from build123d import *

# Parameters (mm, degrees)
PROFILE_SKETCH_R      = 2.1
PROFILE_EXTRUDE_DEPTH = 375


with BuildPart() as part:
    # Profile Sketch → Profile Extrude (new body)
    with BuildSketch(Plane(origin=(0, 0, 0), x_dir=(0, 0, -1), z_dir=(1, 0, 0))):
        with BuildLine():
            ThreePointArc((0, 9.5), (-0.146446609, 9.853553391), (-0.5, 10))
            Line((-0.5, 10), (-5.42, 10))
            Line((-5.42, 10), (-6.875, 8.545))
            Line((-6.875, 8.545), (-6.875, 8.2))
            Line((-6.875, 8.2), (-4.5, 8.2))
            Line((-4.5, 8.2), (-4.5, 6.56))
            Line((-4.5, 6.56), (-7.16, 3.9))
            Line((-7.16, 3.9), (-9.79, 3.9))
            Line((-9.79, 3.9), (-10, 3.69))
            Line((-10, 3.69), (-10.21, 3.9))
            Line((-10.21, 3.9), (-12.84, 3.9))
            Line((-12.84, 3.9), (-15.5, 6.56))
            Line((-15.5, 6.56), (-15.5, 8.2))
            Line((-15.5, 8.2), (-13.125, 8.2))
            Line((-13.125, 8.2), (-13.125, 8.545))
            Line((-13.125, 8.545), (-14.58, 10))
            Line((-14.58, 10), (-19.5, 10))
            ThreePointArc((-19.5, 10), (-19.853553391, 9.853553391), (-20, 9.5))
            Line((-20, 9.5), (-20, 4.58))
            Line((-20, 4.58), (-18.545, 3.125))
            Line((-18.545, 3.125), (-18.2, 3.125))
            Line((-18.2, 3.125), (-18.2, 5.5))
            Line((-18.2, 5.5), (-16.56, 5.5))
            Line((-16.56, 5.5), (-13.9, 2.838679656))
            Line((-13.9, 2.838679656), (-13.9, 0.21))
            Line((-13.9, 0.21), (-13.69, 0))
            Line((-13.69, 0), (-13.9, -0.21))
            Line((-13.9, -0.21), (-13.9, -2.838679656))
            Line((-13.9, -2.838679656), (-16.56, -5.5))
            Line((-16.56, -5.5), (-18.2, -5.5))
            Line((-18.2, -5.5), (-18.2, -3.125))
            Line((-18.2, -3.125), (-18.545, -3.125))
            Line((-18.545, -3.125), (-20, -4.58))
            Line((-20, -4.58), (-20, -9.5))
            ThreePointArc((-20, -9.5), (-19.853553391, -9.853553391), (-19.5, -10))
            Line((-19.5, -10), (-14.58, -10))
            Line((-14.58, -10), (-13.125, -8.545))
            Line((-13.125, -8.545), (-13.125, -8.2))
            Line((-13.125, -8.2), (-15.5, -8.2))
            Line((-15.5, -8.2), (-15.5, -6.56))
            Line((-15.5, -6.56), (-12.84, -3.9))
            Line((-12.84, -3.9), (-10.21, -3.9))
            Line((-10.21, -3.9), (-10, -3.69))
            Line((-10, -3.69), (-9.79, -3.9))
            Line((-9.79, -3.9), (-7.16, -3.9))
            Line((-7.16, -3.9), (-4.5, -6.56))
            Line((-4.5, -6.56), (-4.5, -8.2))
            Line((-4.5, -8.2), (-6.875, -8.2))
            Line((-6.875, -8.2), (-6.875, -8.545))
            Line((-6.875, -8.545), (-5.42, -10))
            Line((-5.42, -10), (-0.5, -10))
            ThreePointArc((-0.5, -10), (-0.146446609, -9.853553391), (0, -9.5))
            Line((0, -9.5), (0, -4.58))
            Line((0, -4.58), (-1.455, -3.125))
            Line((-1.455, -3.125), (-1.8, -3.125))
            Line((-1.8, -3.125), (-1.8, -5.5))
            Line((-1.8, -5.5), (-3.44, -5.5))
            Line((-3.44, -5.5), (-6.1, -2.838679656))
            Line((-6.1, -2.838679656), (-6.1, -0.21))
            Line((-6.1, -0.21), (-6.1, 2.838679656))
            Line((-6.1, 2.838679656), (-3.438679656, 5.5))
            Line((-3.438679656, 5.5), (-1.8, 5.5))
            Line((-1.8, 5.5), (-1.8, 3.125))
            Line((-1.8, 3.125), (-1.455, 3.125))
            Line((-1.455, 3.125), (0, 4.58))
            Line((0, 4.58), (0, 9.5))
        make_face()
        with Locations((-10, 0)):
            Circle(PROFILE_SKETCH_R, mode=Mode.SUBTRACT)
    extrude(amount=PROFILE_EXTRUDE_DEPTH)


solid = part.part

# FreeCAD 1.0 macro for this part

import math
import FreeCAD as App
import Part
import Sketcher

V = App.Vector
Q = App.Units.Quantity

doc = App.newDocument("Part")
params = doc.addObject("Spreadsheet::Sheet", "Params")
for row, (alias, value) in enumerate([
    ("sketch1_diameter", "4.2 mm"),
    ("sketch1_radius", "0.5 mm"),
    ("sketch1_width", "1.64 mm"),
    ("sketch1_width2", "4.92 mm"),
    ("sketch1_height", "2.63 mm"),
    ("pad1_length", "375 mm"),
], start=1):
    params.set(f"A{row}", alias)
    params.set(f"B{row}", "=" + value)
    params.setAlias(f"B{row}", alias)

body = doc.addObject("PartDesign::Body", "Body")

# Sketch on YZ plane
sketch1 = doc.addObject("Sketcher::SketchObject", "Sketch")
body.addObject(sketch1)
sketch1.AttachmentSupport = (doc.YZ_Plane, [""])
sketch1.MapMode = "FlatFace"
sketch1.addGeometry([
    Part.ArcOfCircle(Part.Circle(V(9.5, 0.5, 0), V(0, 0, 1), 0.5), math.radians(-90), math.radians(0)),  # 0
    Part.LineSegment(V(10, 0.5, 0), V(10, 5.42, 0)),  # 1
    Part.LineSegment(V(10, 5.42, 0), V(8.54, 6.88, 0)),  # 2
    Part.LineSegment(V(8.54, 6.88, 0), V(8.2, 6.88, 0)),  # 3
    Part.LineSegment(V(8.2, 6.88, 0), V(8.2, 4.5, 0)),  # 4
    Part.LineSegment(V(8.2, 4.5, 0), V(6.56, 4.5, 0)),  # 5
    Part.LineSegment(V(6.56, 4.5, 0), V(3.9, 7.16, 0)),  # 6
    Part.LineSegment(V(3.9, 7.16, 0), V(3.9, 9.79, 0)),  # 7
    Part.LineSegment(V(3.9, 9.79, 0), V(3.69, 10, 0)),  # 8
    Part.LineSegment(V(3.69, 10, 0), V(3.9, 10.21, 0)),  # 9
    Part.LineSegment(V(3.9, 10.21, 0), V(3.9, 12.84, 0)),  # 10
    Part.LineSegment(V(3.9, 12.84, 0), V(6.56, 15.5, 0)),  # 11
    Part.LineSegment(V(6.56, 15.5, 0), V(8.2, 15.5, 0)),  # 12
    Part.LineSegment(V(8.2, 15.5, 0), V(8.2, 13.12, 0)),  # 13
    Part.LineSegment(V(8.2, 13.12, 0), V(8.54, 13.12, 0)),  # 14
    Part.LineSegment(V(8.54, 13.12, 0), V(10, 14.58, 0)),  # 15
    Part.LineSegment(V(10, 14.58, 0), V(10, 19.5, 0)),  # 16
    Part.ArcOfCircle(Part.Circle(V(9.5, 19.5, 0), V(0, 0, 1), 0.5), math.radians(0), math.radians(90)),  # 17
    Part.LineSegment(V(9.5, 20, 0), V(4.58, 20, 0)),  # 18
    Part.LineSegment(V(4.58, 20, 0), V(3.12, 18.55, 0)),  # 19
    Part.LineSegment(V(3.12, 18.55, 0), V(3.12, 18.2, 0)),  # 20
    Part.LineSegment(V(3.12, 18.2, 0), V(5.5, 18.2, 0)),  # 21
    Part.LineSegment(V(5.5, 18.2, 0), V(5.5, 16.56, 0)),  # 22
    Part.LineSegment(V(5.5, 16.56, 0), V(2.84, 13.9, 0)),  # 23
    Part.LineSegment(V(2.84, 13.9, 0), V(0.21, 13.9, 0)),  # 24
    Part.LineSegment(V(0.21, 13.9, 0), V(0, 13.69, 0)),  # 25
    Part.LineSegment(V(0, 13.69, 0), V(-0.21, 13.9, 0)),  # 26
    Part.LineSegment(V(-0.21, 13.9, 0), V(-2.84, 13.9, 0)),  # 27
    Part.LineSegment(V(-2.84, 13.9, 0), V(-5.5, 16.56, 0)),  # 28
    Part.LineSegment(V(-5.5, 16.56, 0), V(-5.5, 18.2, 0)),  # 29
    Part.LineSegment(V(-5.5, 18.2, 0), V(-3.12, 18.2, 0)),  # 30
    Part.LineSegment(V(-3.12, 18.2, 0), V(-3.12, 18.55, 0)),  # 31
    Part.LineSegment(V(-3.12, 18.55, 0), V(-4.58, 20, 0)),  # 32
    Part.LineSegment(V(-4.58, 20, 0), V(-9.5, 20, 0)),  # 33
    Part.ArcOfCircle(Part.Circle(V(-9.5, 19.5, 0), V(0, 0, 1), 0.5), math.radians(90), math.radians(180)),  # 34
    Part.LineSegment(V(-10, 19.5, 0), V(-10, 14.58, 0)),  # 35
    Part.LineSegment(V(-10, 14.58, 0), V(-8.54, 13.12, 0)),  # 36
    Part.LineSegment(V(-8.54, 13.12, 0), V(-8.2, 13.12, 0)),  # 37
    Part.LineSegment(V(-8.2, 13.12, 0), V(-8.2, 15.5, 0)),  # 38
    Part.LineSegment(V(-8.2, 15.5, 0), V(-6.56, 15.5, 0)),  # 39
    Part.LineSegment(V(-6.56, 15.5, 0), V(-3.9, 12.84, 0)),  # 40
    Part.LineSegment(V(-3.9, 12.84, 0), V(-3.9, 10.21, 0)),  # 41
    Part.LineSegment(V(-3.9, 10.21, 0), V(-3.69, 10, 0)),  # 42
    Part.LineSegment(V(-3.69, 10, 0), V(-3.9, 9.79, 0)),  # 43
    Part.LineSegment(V(-3.9, 9.79, 0), V(-3.9, 7.16, 0)),  # 44
    Part.LineSegment(V(-3.9, 7.16, 0), V(-6.56, 4.5, 0)),  # 45
    Part.LineSegment(V(-6.56, 4.5, 0), V(-8.2, 4.5, 0)),  # 46
    Part.LineSegment(V(-8.2, 4.5, 0), V(-8.2, 6.88, 0)),  # 47
    Part.LineSegment(V(-8.2, 6.88, 0), V(-8.54, 6.88, 0)),  # 48
    Part.LineSegment(V(-8.54, 6.88, 0), V(-10, 5.42, 0)),  # 49
    Part.LineSegment(V(-10, 5.42, 0), V(-10, 0.5, 0)),  # 50
    Part.ArcOfCircle(Part.Circle(V(-9.5, 0.5, 0), V(0, 0, 1), 0.5), math.radians(180), math.radians(270)),  # 51
    Part.LineSegment(V(-9.5, 0, 0), V(-4.58, 0, 0)),  # 52
    Part.LineSegment(V(-4.58, 0, 0), V(-3.12, 1.46, 0)),  # 53
    Part.LineSegment(V(-3.12, 1.46, 0), V(-3.12, 1.8, 0)),  # 54
    Part.LineSegment(V(-3.12, 1.8, 0), V(-5.5, 1.8, 0)),  # 55
    Part.LineSegment(V(-5.5, 1.8, 0), V(-5.5, 3.44, 0)),  # 56
    Part.LineSegment(V(-5.5, 3.44, 0), V(-2.84, 6.1, 0)),  # 57
    Part.LineSegment(V(-2.84, 6.1, 0), V(2.84, 6.1, 0)),  # 58
    Part.LineSegment(V(2.84, 6.1, 0), V(5.5, 3.44, 0)),  # 59
    Part.LineSegment(V(5.5, 3.44, 0), V(5.5, 1.8, 0)),  # 60
    Part.LineSegment(V(5.5, 1.8, 0), V(3.12, 1.8, 0)),  # 61
    Part.LineSegment(V(3.12, 1.8, 0), V(3.12, 1.46, 0)),  # 62
    Part.LineSegment(V(3.12, 1.46, 0), V(4.58, 0, 0)),  # 63
    Part.LineSegment(V(4.58, 0, 0), V(9.5, 0, 0)),  # 64
    Part.Circle(V(0, 10, 0), V(0, 0, 1), 2.1),  # 65
], False)
sketch1.addConstraint([
    Sketcher.Constraint("Tangent", 0, 2, 1, 1),
    Sketcher.Constraint("Coincident", 1, 2, 2, 1),
    Sketcher.Constraint("Coincident", 2, 2, 3, 1),
    Sketcher.Constraint("Coincident", 3, 2, 4, 1),
    Sketcher.Constraint("Coincident", 4, 2, 5, 1),
    Sketcher.Constraint("Coincident", 5, 2, 6, 1),
    Sketcher.Constraint("Coincident", 6, 2, 7, 1),
    Sketcher.Constraint("Coincident", 7, 2, 8, 1),
    Sketcher.Constraint("Coincident", 8, 2, 9, 1),
    Sketcher.Constraint("Coincident", 9, 2, 10, 1),
    Sketcher.Constraint("Coincident", 10, 2, 11, 1),
    Sketcher.Constraint("Coincident", 11, 2, 12, 1),
    Sketcher.Constraint("Coincident", 12, 2, 13, 1),
    Sketcher.Constraint("Coincident", 13, 2, 14, 1),
    Sketcher.Constraint("Coincident", 14, 2, 15, 1),
    Sketcher.Constraint("Coincident", 15, 2, 16, 1),
    Sketcher.Constraint("Tangent", 16, 2, 17, 1),
    Sketcher.Constraint("Tangent", 17, 2, 18, 1),
    Sketcher.Constraint("Coincident", 18, 2, 19, 1),
    Sketcher.Constraint("Coincident", 19, 2, 20, 1),
    Sketcher.Constraint("Coincident", 20, 2, 21, 1),
    Sketcher.Constraint("Coincident", 21, 2, 22, 1),
    Sketcher.Constraint("Coincident", 22, 2, 23, 1),
    Sketcher.Constraint("Coincident", 23, 2, 24, 1),
    Sketcher.Constraint("Coincident", 24, 2, 25, 1),
    Sketcher.Constraint("Coincident", 25, 2, 26, 1),
    Sketcher.Constraint("Coincident", 26, 2, 27, 1),
    Sketcher.Constraint("Coincident", 27, 2, 28, 1),
    Sketcher.Constraint("Coincident", 28, 2, 29, 1),
    Sketcher.Constraint("Coincident", 29, 2, 30, 1),
    Sketcher.Constraint("Coincident", 30, 2, 31, 1),
    Sketcher.Constraint("Coincident", 31, 2, 32, 1),
    Sketcher.Constraint("Coincident", 32, 2, 33, 1),
    Sketcher.Constraint("Tangent", 33, 2, 34, 1),
    Sketcher.Constraint("Tangent", 34, 2, 35, 1),
    Sketcher.Constraint("Coincident", 35, 2, 36, 1),
    Sketcher.Constraint("Coincident", 36, 2, 37, 1),
    Sketcher.Constraint("Coincident", 37, 2, 38, 1),
    Sketcher.Constraint("Coincident", 38, 2, 39, 1),
    Sketcher.Constraint("Coincident", 39, 2, 40, 1),
    Sketcher.Constraint("Coincident", 40, 2, 41, 1),
    Sketcher.Constraint("Coincident", 41, 2, 42, 1),
    Sketcher.Constraint("Coincident", 42, 2, 43, 1),
    Sketcher.Constraint("Coincident", 43, 2, 44, 1),
    Sketcher.Constraint("Coincident", 44, 2, 45, 1),
    Sketcher.Constraint("Coincident", 45, 2, 46, 1),
    Sketcher.Constraint("Coincident", 46, 2, 47, 1),
    Sketcher.Constraint("Coincident", 47, 2, 48, 1),
    Sketcher.Constraint("Coincident", 48, 2, 49, 1),
    Sketcher.Constraint("Coincident", 49, 2, 50, 1),
    Sketcher.Constraint("Tangent", 50, 2, 51, 1),
    Sketcher.Constraint("Tangent", 51, 2, 52, 1),
    Sketcher.Constraint("Coincident", 52, 2, 53, 1),
    Sketcher.Constraint("Coincident", 53, 2, 54, 1),
    Sketcher.Constraint("Coincident", 54, 2, 55, 1),
    Sketcher.Constraint("Coincident", 55, 2, 56, 1),
    Sketcher.Constraint("Coincident", 56, 2, 57, 1),
    Sketcher.Constraint("Coincident", 57, 2, 58, 1),
    Sketcher.Constraint("Coincident", 58, 2, 59, 1),
    Sketcher.Constraint("Coincident", 59, 2, 60, 1),
    Sketcher.Constraint("Coincident", 60, 2, 61, 1),
    Sketcher.Constraint("Coincident", 61, 2, 62, 1),
    Sketcher.Constraint("Coincident", 62, 2, 63, 1),
    Sketcher.Constraint("Coincident", 63, 2, 64, 1),
    Sketcher.Constraint("Tangent", 64, 2, 0, 1),
    Sketcher.Constraint("Vertical", 1),
    Sketcher.Constraint("Horizontal", 3),
    Sketcher.Constraint("Vertical", 4),
    Sketcher.Constraint("Horizontal", 5),
    Sketcher.Constraint("Vertical", 7),
    Sketcher.Constraint("Vertical", 10),
    Sketcher.Constraint("Horizontal", 12),
    Sketcher.Constraint("Vertical", 13),
    Sketcher.Constraint("Horizontal", 14),
    Sketcher.Constraint("Vertical", 16),
    Sketcher.Constraint("Horizontal", 18),
    Sketcher.Constraint("Vertical", 20),
    Sketcher.Constraint("Horizontal", 21),
    Sketcher.Constraint("Vertical", 22),
    Sketcher.Constraint("Horizontal", 24),
    Sketcher.Constraint("Horizontal", 27),
    Sketcher.Constraint("Vertical", 29),
    Sketcher.Constraint("Horizontal", 30),
    Sketcher.Constraint("Vertical", 31),
    Sketcher.Constraint("Horizontal", 33),
    Sketcher.Constraint("Vertical", 35),
    Sketcher.Constraint("Horizontal", 37),
    Sketcher.Constraint("Vertical", 38),
    Sketcher.Constraint("Horizontal", 39),
    Sketcher.Constraint("Vertical", 41),
    Sketcher.Constraint("Vertical", 44),
    Sketcher.Constraint("Horizontal", 46),
    Sketcher.Constraint("Vertical", 47),
    Sketcher.Constraint("Horizontal", 48),
    Sketcher.Constraint("Vertical", 50),
    Sketcher.Constraint("Horizontal", 52),
    Sketcher.Constraint("Vertical", 54),
    Sketcher.Constraint("Horizontal", 55),
    Sketcher.Constraint("Vertical", 56),
    Sketcher.Constraint("Horizontal", 58),
    Sketcher.Constraint("Vertical", 60),
    Sketcher.Constraint("Horizontal", 61),
    Sketcher.Constraint("Vertical", 62),
    Sketcher.Constraint("Horizontal", 64),
    Sketcher.Constraint("Equal", 0, 17),
    Sketcher.Constraint("Equal", 17, 34),
    Sketcher.Constraint("Equal", 34, 51),
    Sketcher.Constraint("Symmetric", 52, 2, 63, 2, -1, 1),
    Sketcher.Constraint("Symmetric", 17, 3, 34, 3, -2),
    Sketcher.Constraint("Symmetric", 0, 3, 51, 3, -2),
    Sketcher.Constraint("Symmetric", 24, 2, 26, 2, -2),
    Sketcher.Constraint("Symmetric", 22, 2, 28, 2, -2),
    Sketcher.Constraint("Symmetric", 20, 2, 30, 2, -2),
    Sketcher.Constraint("Symmetric", 14, 2, 36, 2, -2),
    Sketcher.Constraint("Symmetric", 12, 2, 38, 2, -2),
    Sketcher.Constraint("Symmetric", 10, 2, 40, 2, -2),
    Sketcher.Constraint("Symmetric", 8, 2, 42, 2, -2),
    Sketcher.Constraint("Symmetric", 7, 2, 43, 2, -2),
    Sketcher.Constraint("Symmetric", 5, 2, 45, 2, -2),
    Sketcher.Constraint("Symmetric", 3, 2, 47, 2, -2),
    Sketcher.Constraint("Symmetric", 55, 2, 60, 2, -2),
    Sketcher.Constraint("Symmetric", 53, 2, 62, 2, -2),
    Sketcher.Constraint("PointOnObject", 65, 3, -2),
    Sketcher.Constraint("PointOnObject", 25, 2, -2),
    Sketcher.Constraint("Parallel", 2, 6),
    Sketcher.Constraint("Parallel", 6, 8),
    Sketcher.Constraint("Perpendicular", 8, 9),
    Sketcher.Constraint("Parallel", 9, 11),
    Sketcher.Constraint("Parallel", 11, 15),
    Sketcher.Constraint("Parallel", 15, 19),
    Sketcher.Constraint("Parallel", 19, 25),
    Sketcher.Constraint("Perpendicular", 25, 26),
    Sketcher.Constraint("Parallel", 26, 32),
    Sketcher.Constraint("Parallel", 32, 36),
    Sketcher.Constraint("Parallel", 36, 40),
    Sketcher.Constraint("Parallel", 40, 42),
    Sketcher.Constraint("Parallel", 43, 45),
    Sketcher.Constraint("Parallel", 45, 49),
    Sketcher.Constraint("Parallel", 49, 53),
    Sketcher.Constraint("Parallel", 23, 57),
    Sketcher.Constraint("Perpendicular", 53, 59),
    Sketcher.Constraint("Horizontal", 65, 3, 8, 2),
    Sketcher.Constraint("Horizontal", 19, 2, 31, 2),
    Sketcher.Constraint("Horizontal", 1, 2, 49, 2),
    Sketcher.Constraint("Vertical", 0, 3, 17, 3),
    Sketcher.Constraint("Vertical", 7, 2, 9, 2),
    Sketcher.Constraint("Vertical", 5, 2, 11, 2),
    Sketcher.Constraint("Vertical", 4, 2, 12, 2),
    Sketcher.Constraint("Vertical", 2, 2, 14, 2),
    Sketcher.Constraint("Vertical", 32, 2, 52, 2),
    Sketcher.Constraint("Vertical", 31, 2, 53, 2),
    Sketcher.Constraint("Vertical", 29, 2, 55, 2),
    Sketcher.Constraint("Vertical", 27, 2, 57, 2),
    Sketcher.Constraint("Vertical", 23, 2, 58, 2),
    Sketcher.Constraint("Equal", 24, 27),
    Sketcher.Constraint("Equal", 64, 1),
    Sketcher.Constraint("Equal", 61, 4),
    Sketcher.Constraint("Equal", 7, 10),
    Sketcher.Constraint("Equal", 4, 13),
    Sketcher.Constraint("Equal", 1, 16),
    Sketcher.Constraint("Equal", 48, 20),
    Sketcher.Constraint("Equal", 46, 22),
    Sketcher.Constraint("Equal", 31, 54),
    Sketcher.Constraint("Equal", 29, 56),
    Sketcher.Constraint("Equal", 15, 19),
    Sketcher.Constraint("Equal", 9, 25),
    Sketcher.Constraint("Diameter", 65, Q("4.2 mm")),
    Sketcher.Constraint("Radius", 0, Q("0.5 mm")),
    Sketcher.Constraint("DistanceY", -1, 1, 65, 3, Q("10 mm")),
    Sketcher.Constraint("DistanceX", -1, 1, 0, 2, Q("10 mm")),
    Sketcher.Constraint("DistanceX", 5, 2, 5, 1, Q("1.64 mm")),
    Sketcher.Constraint("DistanceX", 18, 2, 18, 1, Q("4.92 mm")),
    Sketcher.Constraint("DistanceY", 7, 1, 7, 2, Q("2.63 mm")),
    Sketcher.Constraint("DistanceX", -1, 1, 3, 2, Q("8.2 mm")),
    Sketcher.Constraint("DistanceY", -1, 1, 4, 2, Q("4.5 mm")),
    Sketcher.Constraint("DistanceX", -1, 1, 6, 2, Q("3.9 mm")),
    Sketcher.Constraint("DistanceY", -1, 1, 23, 2, Q("13.9 mm")),
    Sketcher.Constraint("DistanceX", 3, 2, 3, 1, Q("0.345 mm")),
    Sketcher.Constraint("DistanceX", 24, 2, 24, 1, Q("2.62868 mm")),
])
sketch1.setExpression("Constraints[166]", "Params.sketch1_diameter")
sketch1.setExpression("Constraints[167]", "Params.sketch1_radius")
sketch1.setExpression("Constraints[170]", "Params.sketch1_width")
sketch1.setExpression("Constraints[171]", "Params.sketch1_width2")
sketch1.setExpression("Constraints[172]", "Params.sketch1_height")
pad1 = doc.addObject("PartDesign::Pad", "Pad")
body.addObject(pad1)
pad1.Profile = sketch1
pad1.setExpression("Length", "Params.pad1_length")

doc.recompute()
